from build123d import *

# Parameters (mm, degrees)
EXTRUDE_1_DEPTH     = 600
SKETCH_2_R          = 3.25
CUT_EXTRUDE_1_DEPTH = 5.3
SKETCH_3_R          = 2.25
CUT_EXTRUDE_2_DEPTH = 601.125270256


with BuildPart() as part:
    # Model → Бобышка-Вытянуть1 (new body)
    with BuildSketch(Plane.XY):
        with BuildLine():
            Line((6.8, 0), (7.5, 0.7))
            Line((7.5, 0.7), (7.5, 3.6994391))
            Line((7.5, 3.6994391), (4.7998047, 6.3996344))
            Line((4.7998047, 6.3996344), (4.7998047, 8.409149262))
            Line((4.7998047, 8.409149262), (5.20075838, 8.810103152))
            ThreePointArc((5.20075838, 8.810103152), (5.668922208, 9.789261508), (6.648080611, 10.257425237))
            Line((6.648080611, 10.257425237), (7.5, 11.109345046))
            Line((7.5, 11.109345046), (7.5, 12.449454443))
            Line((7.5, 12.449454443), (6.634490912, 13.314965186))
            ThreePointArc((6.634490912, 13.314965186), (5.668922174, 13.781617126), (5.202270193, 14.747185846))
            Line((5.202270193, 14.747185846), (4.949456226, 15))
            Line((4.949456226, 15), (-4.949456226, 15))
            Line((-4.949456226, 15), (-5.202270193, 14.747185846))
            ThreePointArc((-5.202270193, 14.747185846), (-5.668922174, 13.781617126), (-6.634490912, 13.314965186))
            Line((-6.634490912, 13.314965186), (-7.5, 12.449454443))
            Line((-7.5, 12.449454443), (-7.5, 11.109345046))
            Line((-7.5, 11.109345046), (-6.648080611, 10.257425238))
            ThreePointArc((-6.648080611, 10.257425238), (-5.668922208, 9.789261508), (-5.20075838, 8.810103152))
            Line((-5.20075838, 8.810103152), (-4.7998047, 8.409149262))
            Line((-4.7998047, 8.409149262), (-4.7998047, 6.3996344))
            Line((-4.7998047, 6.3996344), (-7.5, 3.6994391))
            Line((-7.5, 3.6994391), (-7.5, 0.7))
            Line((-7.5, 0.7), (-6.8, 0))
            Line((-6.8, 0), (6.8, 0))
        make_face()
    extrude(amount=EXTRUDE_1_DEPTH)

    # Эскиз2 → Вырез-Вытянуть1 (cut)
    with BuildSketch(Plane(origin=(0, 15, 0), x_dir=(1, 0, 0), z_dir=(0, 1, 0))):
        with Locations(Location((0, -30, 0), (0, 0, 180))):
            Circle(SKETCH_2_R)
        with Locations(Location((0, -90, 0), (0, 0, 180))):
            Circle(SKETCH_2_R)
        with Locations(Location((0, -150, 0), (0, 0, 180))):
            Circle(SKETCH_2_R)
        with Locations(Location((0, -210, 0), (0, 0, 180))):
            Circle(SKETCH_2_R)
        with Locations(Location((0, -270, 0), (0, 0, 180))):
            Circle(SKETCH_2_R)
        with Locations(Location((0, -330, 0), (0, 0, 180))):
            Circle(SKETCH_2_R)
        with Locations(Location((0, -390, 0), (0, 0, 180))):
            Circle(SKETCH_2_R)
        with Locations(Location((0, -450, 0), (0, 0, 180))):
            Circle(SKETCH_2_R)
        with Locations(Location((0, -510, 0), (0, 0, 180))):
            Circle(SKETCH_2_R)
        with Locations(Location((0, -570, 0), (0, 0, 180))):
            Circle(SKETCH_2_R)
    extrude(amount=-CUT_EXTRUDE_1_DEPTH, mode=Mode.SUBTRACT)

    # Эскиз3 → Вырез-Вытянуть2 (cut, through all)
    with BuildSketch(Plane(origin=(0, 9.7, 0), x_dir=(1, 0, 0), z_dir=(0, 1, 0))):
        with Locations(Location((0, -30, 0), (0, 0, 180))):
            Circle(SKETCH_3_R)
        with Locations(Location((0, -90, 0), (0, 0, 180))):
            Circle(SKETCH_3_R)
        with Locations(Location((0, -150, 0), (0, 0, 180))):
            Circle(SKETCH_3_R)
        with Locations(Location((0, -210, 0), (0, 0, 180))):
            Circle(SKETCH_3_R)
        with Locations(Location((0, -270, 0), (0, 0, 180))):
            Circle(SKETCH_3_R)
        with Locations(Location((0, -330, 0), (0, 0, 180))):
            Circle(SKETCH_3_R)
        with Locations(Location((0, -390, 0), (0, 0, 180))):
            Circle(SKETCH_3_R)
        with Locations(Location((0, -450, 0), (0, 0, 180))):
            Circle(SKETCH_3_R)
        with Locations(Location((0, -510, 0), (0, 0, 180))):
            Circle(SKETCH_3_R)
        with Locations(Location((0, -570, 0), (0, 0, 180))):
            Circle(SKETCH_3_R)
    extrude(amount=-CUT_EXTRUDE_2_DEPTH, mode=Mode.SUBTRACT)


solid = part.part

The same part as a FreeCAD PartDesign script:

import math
import FreeCAD as App
import Part
import Sketcher
from FreeCAD import Vector

doc = App.newDocument("Part")
body = doc.addObject("PartDesign::Body", "Body")

# Sketch on XY plane
sketch1 = doc.addObject("Sketcher::SketchObject", "Sketch")
body.addObject(sketch1)
sketch1.AttachmentSupport = (doc.XY_Plane, [""])
sketch1.MapMode = "FlatFace"
sketch1.addGeometry([
    Part.LineSegment(Vector(6.8, 0, 0), Vector(7.5, 0.7, 0)),  # 0
    Part.LineSegment(Vector(7.5, 0.7, 0), Vector(7.5, 3.699439, 0)),  # 1
    Part.LineSegment(Vector(7.5, 3.699439, 0), Vector(4.799805, 6.399634, 0)),  # 2
    Part.LineSegment(Vector(4.799805, 6.399634, 0), Vector(4.799805, 8.409149, 0)),  # 3
    Part.LineSegment(Vector(4.799805, 8.409149, 0), Vector(5.200758, 8.810103, 0)),  # 4
    Part.ArcOfCircle(Part.Circle(Vector(6.821506, 8.636677, 0), Vector(0, 0, 1), 1.63), math.radians(96.107606), math.radians(173.892388)),  # 5
    Part.LineSegment(Vector(6.648081, 10.257425, 0), Vector(7.5, 11.109345, 0)),  # 6
    Part.LineSegment(Vector(7.5, 11.109345, 0), Vector(7.5, 12.449454, 0)),  # 7
    Part.LineSegment(Vector(7.5, 12.449454, 0), Vector(6.634491, 13.314965, 0)),  # 8
    Part.ArcOfCircle(Part.Circle(Vector(6.821506, 14.934201, 0), Vector(0, 0, 1), 1.63), math.radians(-173.411755), math.radians(-96.588243)),  # 9
    Part.LineSegment(Vector(5.20227, 14.747186, 0), Vector(4.949456, 15, 0)),  # 10
    Part.LineSegment(Vector(4.949456, 15, 0), Vector(-4.949456, 15, 0)),  # 11
    Part.LineSegment(Vector(-4.949456, 15, 0), Vector(-5.20227, 14.747186, 0)),  # 12
    Part.ArcOfCircle(Part.Circle(Vector(-6.821506, 14.934201, 0), Vector(0, 0, 1), 1.63), math.radians(-83.411757), math.radians(-6.588245)),  # 13
    Part.LineSegment(Vector(-6.634491, 13.314965, 0), Vector(-7.5, 12.449454, 0)),  # 14
    Part.LineSegment(Vector(-7.5, 12.449454, 0), Vector(-7.5, 11.109345, 0)),  # 15
    Part.LineSegment(Vector(-7.5, 11.109345, 0), Vector(-6.648081, 10.257425, 0)),  # 16
    Part.ArcOfCircle(Part.Circle(Vector(-6.821506, 8.636677, 0), Vector(0, 0, 1), 1.63), math.radians(6.107612), math.radians(83.892394)),  # 17
    Part.LineSegment(Vector(-5.200758, 8.810103, 0), Vector(-4.799805, 8.409149, 0)),  # 18
    Part.LineSegment(Vector(-4.799805, 8.409149, 0), Vector(-4.799805, 6.399634, 0)),  # 19
    Part.LineSegment(Vector(-4.799805, 6.399634, 0), Vector(-7.5, 3.699439, 0)),  # 20
    Part.LineSegment(Vector(-7.5, 3.699439, 0), Vector(-7.5, 0.7, 0)),  # 21
    Part.LineSegment(Vector(-7.5, 0.7, 0), Vector(-6.8, 0, 0)),  # 22
    Part.LineSegment(Vector(-6.8, 0, 0), Vector(6.8, 0, 0)),  # 23
], False)
sketch1.addConstraint([
    Sketcher.Constraint("Coincident", 0, 2, 1, 1),
    Sketcher.Constraint("Coincident", 1, 2, 2, 1),
    Sketcher.Constraint("Coincident", 2, 2, 3, 1),
    Sketcher.Constraint("Coincident", 3, 2, 4, 1),
    Sketcher.Constraint("Coincident", 4, 2, 5, 2),
    Sketcher.Constraint("Coincident", 5, 1, 6, 1),
    Sketcher.Constraint("Coincident", 6, 2, 7, 1),
    Sketcher.Constraint("Coincident", 7, 2, 8, 1),
    Sketcher.Constraint("Coincident", 8, 2, 9, 2),
    Sketcher.Constraint("Coincident", 9, 1, 10, 1),
    Sketcher.Constraint("Coincident", 10, 2, 11, 1),
    Sketcher.Constraint("Coincident", 11, 2, 12, 1),
    Sketcher.Constraint("Coincident", 12, 2, 13, 2),
    Sketcher.Constraint("Coincident", 13, 1, 14, 1),
    Sketcher.Constraint("Coincident", 14, 2, 15, 1),
    Sketcher.Constraint("Coincident", 15, 2, 16, 1),
    Sketcher.Constraint("Coincident", 16, 2, 17, 2),
    Sketcher.Constraint("Coincident", 17, 1, 18, 1),
    Sketcher.Constraint("Coincident", 18, 2, 19, 1),
    Sketcher.Constraint("Coincident", 19, 2, 20, 1),
    Sketcher.Constraint("Coincident", 20, 2, 21, 1),
    Sketcher.Constraint("Coincident", 21, 2, 22, 1),
    Sketcher.Constraint("Coincident", 22, 2, 23, 1),
    Sketcher.Constraint("Coincident", 23, 2, 0, 1),
    Sketcher.Constraint("Vertical", 1),
    Sketcher.Constraint("Vertical", 3),
    Sketcher.Constraint("Vertical", 7),
    Sketcher.Constraint("Horizontal", 11),
    Sketcher.Constraint("Vertical", 15),
    Sketcher.Constraint("Vertical", 19),
    Sketcher.Constraint("Vertical", 21),
    Sketcher.Constraint("Horizontal", 23),
    Sketcher.Constraint("Equal", 5, 9),
    Sketcher.Constraint("Equal", 9, 13),
    Sketcher.Constraint("Equal", 13, 17),
    Sketcher.Constraint("Symmetric", 22, 2, 23, 2, -1, 1),
    Sketcher.Constraint("Symmetric", 9, 3, 13, 3, -2),
    Sketcher.Constraint("Symmetric", 5, 3, 17, 3, -2),
    Sketcher.Constraint("Symmetric", 7, 2, 14, 2, -2),
    Sketcher.Constraint("Symmetric", 3, 2, 18, 2, -2),
    Sketcher.Constraint("Symmetric", 1, 2, 20, 2, -2),
    Sketcher.Constraint("Perpendicular", 0, 2),
    Sketcher.Constraint("Perpendicular", 2, 4),
    Sketcher.Constraint("Parallel", 4, 6),
    Sketcher.Constraint("Perpendicular", 6, 8),
    Sketcher.Constraint("Parallel", 8, 10),
    Sketcher.Constraint("Perpendicular", 10, 12),
    Sketcher.Constraint("Parallel", 12, 14),
    Sketcher.Constraint("Perpendicular", 14, 16),
    Sketcher.Constraint("Parallel", 16, 18),
    Sketcher.Constraint("Perpendicular", 18, 20),
    Sketcher.Constraint("Perpendicular", 20, 22),
    Sketcher.Constraint("Horizontal", 9, 1, 12, 2),
    Sketcher.Constraint("Horizontal", 8, 2, 13, 1),
    Sketcher.Constraint("Horizontal", 6, 2, 15, 2),
    Sketcher.Constraint("Vertical", 5, 3, 9, 3),
    Sketcher.Constraint("Vertical", 1, 2, 6, 2),
    Sketcher.Constraint("Radius", 5, 1.63),
    Sketcher.Constraint("DistanceX", 23, 1, 23, 2, 13.6),
    Sketcher.Constraint("DistanceY", -1, 1, 10, 2, 15.0),
    Sketcher.Constraint("DistanceX", -1, 1, 0, 2, 7.5),
    Sketcher.Constraint("DistanceY", 1, 1, 1, 2, 2.999439),
    Sketcher.Constraint("DistanceY", 7, 1, 7, 2, 1.340109),
    Sketcher.Constraint("DistanceY", -1, 1, 9, 3, 14.934201),
    Sketcher.Constraint("DistanceX", 2, 2, 5, 3, 2.021702),
    Sketcher.Constraint("DistanceY", 4, 2, 9, 3, 6.124098),
    Sketcher.Constraint("DistanceX", 11, 2, 11, 1, 9.898912),
    Sketcher.Constraint("DistanceY", 3, 1, 3, 2, 2.009515),
    Sketcher.Constraint("DistanceY", -1, 1, 3, 2, 8.409149),
    Sketcher.Constraint("DistanceX", -1, 1, 5, 1, 6.648081),
])
pad1 = doc.addObject("PartDesign::Pad", "Pad")
body.addObject(pad1)
pad1.Profile = sketch1
pad1.Length = 600

# Sketch on XZ plane
sketch2 = doc.addObject("Sketcher::SketchObject", "Sketch001")
body.addObject(sketch2)
sketch2.AttachmentSupport = (doc.XZ_Plane, [""])
sketch2.MapMode = "FlatFace"
sketch2.AttachmentOffset = App.Placement(Vector(0, 0, -15), App.Rotation())
sketch2.addGeometry([
    Part.Circle(Vector(0, 30, 0), Vector(0, 0, 1), 3.25),  # 0
    Part.Circle(Vector(0, 90, 0), Vector(0, 0, 1), 3.25),  # 1
    Part.Circle(Vector(0, 150, 0), Vector(0, 0, 1), 3.25),  # 2
    Part.Circle(Vector(0, 210, 0), Vector(0, 0, 1), 3.25),  # 3
    Part.Circle(Vector(0, 270, 0), Vector(0, 0, 1), 3.25),  # 4
    Part.Circle(Vector(0, 330, 0), Vector(0, 0, 1), 3.25),  # 5
    Part.Circle(Vector(0, 390, 0), Vector(0, 0, 1), 3.25),  # 6
    Part.Circle(Vector(0, 450, 0), Vector(0, 0, 1), 3.25),  # 7
    Part.Circle(Vector(0, 510, 0), Vector(0, 0, 1), 3.25),  # 8
    Part.Circle(Vector(0, 570, 0), Vector(0, 0, 1), 3.25),  # 9
], False)
sketch2.addConstraint([
    Sketcher.Constraint("Equal", 0, 1),
    Sketcher.Constraint("Equal", 1, 2),
    Sketcher.Constraint("Equal", 2, 3),
    Sketcher.Constraint("Equal", 3, 4),
    Sketcher.Constraint("Equal", 4, 5),
    Sketcher.Constraint("Equal", 5, 6),
    Sketcher.Constraint("Equal", 6, 7),
    Sketcher.Constraint("Equal", 7, 8),
    Sketcher.Constraint("Equal", 8, 9),
    Sketcher.Constraint("PointOnObject", 0, 3, -2),
    Sketcher.Constraint("PointOnObject", 1, 3, -2),
    Sketcher.Constraint("PointOnObject", 2, 3, -2),
    Sketcher.Constraint("PointOnObject", 3, 3, -2),
    Sketcher.Constraint("PointOnObject", 4, 3, -2),
    Sketcher.Constraint("PointOnObject", 5, 3, -2),
    Sketcher.Constraint("PointOnObject", 6, 3, -2),
    Sketcher.Constraint("PointOnObject", 7, 3, -2),
    Sketcher.Constraint("PointOnObject", 8, 3, -2),
    Sketcher.Constraint("PointOnObject", 9, 3, -2),
    Sketcher.Constraint("Diameter", 0, 6.5),
    Sketcher.Constraint("DistanceY", -1, 1, 0, 3, 30.0),
    Sketcher.Constraint("DistanceY", -1, 1, 1, 3, 90.0),
    Sketcher.Constraint("DistanceY", -1, 1, 2, 3, 150.0),
    Sketcher.Constraint("DistanceY", -1, 1, 3, 3, 210.0),
    Sketcher.Constraint("DistanceY", -1, 1, 4, 3, 270.0),
    Sketcher.Constraint("DistanceY", -1, 1, 5, 3, 330.0),
    Sketcher.Constraint("DistanceY", -1, 1, 6, 3, 390.0),
    Sketcher.Constraint("DistanceY", -1, 1, 7, 3, 450.0),
    Sketcher.Constraint("DistanceY", -1, 1, 8, 3, 510.0),
    Sketcher.Constraint("DistanceY", -1, 1, 9, 3, 570.0),
])
pocket1 = doc.addObject("PartDesign::Pocket", "Pocket")
body.addObject(pocket1)
pocket1.Profile = sketch2
pocket1.Length = 5.3
pocket1.Reversed = True

# Sketch on XZ plane
sketch3 = doc.addObject("Sketcher::SketchObject", "Sketch002")
body.addObject(sketch3)
sketch3.AttachmentSupport = (doc.XZ_Plane, [""])
sketch3.MapMode = "FlatFace"
sketch3.AttachmentOffset = App.Placement(Vector(0, 0, -9.7), App.Rotation())
sketch3.addGeometry([
    Part.Circle(Vector(0, 30, 0), Vector(0, 0, 1), 2.25),  # 0
    Part.Circle(Vector(0, 90, 0), Vector(0, 0, 1), 2.25),  # 1
    Part.Circle(Vector(0, 150, 0), Vector(0, 0, 1), 2.25),  # 2
    Part.Circle(Vector(0, 210, 0), Vector(0, 0, 1), 2.25),  # 3
    Part.Circle(Vector(0, 270, 0), Vector(0, 0, 1), 2.25),  # 4
    Part.Circle(Vector(0, 330, 0), Vector(0, 0, 1), 2.25),  # 5
    Part.Circle(Vector(0, 390, 0), Vector(0, 0, 1), 2.25),  # 6
    Part.Circle(Vector(0, 450, 0), Vector(0, 0, 1), 2.25),  # 7
    Part.Circle(Vector(0, 510, 0), Vector(0, 0, 1), 2.25),  # 8
    Part.Circle(Vector(0, 570, 0), Vector(0, 0, 1), 2.25),  # 9
], False)
sketch3.addConstraint([
    Sketcher.Constraint("Equal", 0, 1),
    Sketcher.Constraint("Equal", 1, 2),
    Sketcher.Constraint("Equal", 2, 3),
    Sketcher.Constraint("Equal", 3, 4),
    Sketcher.Constraint("Equal", 4, 5),
    Sketcher.Constraint("Equal", 5, 6),
    Sketcher.Constraint("Equal", 6, 7),
    Sketcher.Constraint("Equal", 7, 8),
    Sketcher.Constraint("Equal", 8, 9),
    Sketcher.Constraint("PointOnObject", 0, 3, -2),
    Sketcher.Constraint("PointOnObject", 1, 3, -2),
    Sketcher.Constraint("PointOnObject", 2, 3, -2),
    Sketcher.Constraint("PointOnObject", 3, 3, -2),
    Sketcher.Constraint("PointOnObject", 4, 3, -2),
    Sketcher.Constraint("PointOnObject", 5, 3, -2),
    Sketcher.Constraint("PointOnObject", 6, 3, -2),
    Sketcher.Constraint("PointOnObject", 7, 3, -2),
    Sketcher.Constraint("PointOnObject", 8, 3, -2),
    Sketcher.Constraint("PointOnObject", 9, 3, -2),
    Sketcher.Constraint("Diameter", 0, 4.5),
    Sketcher.Constraint("DistanceY", -1, 1, 0, 3, 30.0),
    Sketcher.Constraint("DistanceY", -1, 1, 1, 3, 90.0),
    Sketcher.Constraint("DistanceY", -1, 1, 2, 3, 150.0),
    Sketcher.Constraint("DistanceY", -1, 1, 3, 3, 210.0),
    Sketcher.Constraint("DistanceY", -1, 1, 4, 3, 270.0),
    Sketcher.Constraint("DistanceY", -1, 1, 5, 3, 330.0),
    Sketcher.Constraint("DistanceY", -1, 1, 6, 3, 390.0),
    Sketcher.Constraint("DistanceY", -1, 1, 7, 3, 450.0),
    Sketcher.Constraint("DistanceY", -1, 1, 8, 3, 510.0),
    Sketcher.Constraint("DistanceY", -1, 1, 9, 3, 570.0),
])
pocket2 = doc.addObject("PartDesign::Pocket", "Pocket001")
body.addObject(pocket2)
pocket2.Profile = sketch3
pocket2.Type = "ThroughAll"
pocket2.Reversed = True

doc.recompute()
